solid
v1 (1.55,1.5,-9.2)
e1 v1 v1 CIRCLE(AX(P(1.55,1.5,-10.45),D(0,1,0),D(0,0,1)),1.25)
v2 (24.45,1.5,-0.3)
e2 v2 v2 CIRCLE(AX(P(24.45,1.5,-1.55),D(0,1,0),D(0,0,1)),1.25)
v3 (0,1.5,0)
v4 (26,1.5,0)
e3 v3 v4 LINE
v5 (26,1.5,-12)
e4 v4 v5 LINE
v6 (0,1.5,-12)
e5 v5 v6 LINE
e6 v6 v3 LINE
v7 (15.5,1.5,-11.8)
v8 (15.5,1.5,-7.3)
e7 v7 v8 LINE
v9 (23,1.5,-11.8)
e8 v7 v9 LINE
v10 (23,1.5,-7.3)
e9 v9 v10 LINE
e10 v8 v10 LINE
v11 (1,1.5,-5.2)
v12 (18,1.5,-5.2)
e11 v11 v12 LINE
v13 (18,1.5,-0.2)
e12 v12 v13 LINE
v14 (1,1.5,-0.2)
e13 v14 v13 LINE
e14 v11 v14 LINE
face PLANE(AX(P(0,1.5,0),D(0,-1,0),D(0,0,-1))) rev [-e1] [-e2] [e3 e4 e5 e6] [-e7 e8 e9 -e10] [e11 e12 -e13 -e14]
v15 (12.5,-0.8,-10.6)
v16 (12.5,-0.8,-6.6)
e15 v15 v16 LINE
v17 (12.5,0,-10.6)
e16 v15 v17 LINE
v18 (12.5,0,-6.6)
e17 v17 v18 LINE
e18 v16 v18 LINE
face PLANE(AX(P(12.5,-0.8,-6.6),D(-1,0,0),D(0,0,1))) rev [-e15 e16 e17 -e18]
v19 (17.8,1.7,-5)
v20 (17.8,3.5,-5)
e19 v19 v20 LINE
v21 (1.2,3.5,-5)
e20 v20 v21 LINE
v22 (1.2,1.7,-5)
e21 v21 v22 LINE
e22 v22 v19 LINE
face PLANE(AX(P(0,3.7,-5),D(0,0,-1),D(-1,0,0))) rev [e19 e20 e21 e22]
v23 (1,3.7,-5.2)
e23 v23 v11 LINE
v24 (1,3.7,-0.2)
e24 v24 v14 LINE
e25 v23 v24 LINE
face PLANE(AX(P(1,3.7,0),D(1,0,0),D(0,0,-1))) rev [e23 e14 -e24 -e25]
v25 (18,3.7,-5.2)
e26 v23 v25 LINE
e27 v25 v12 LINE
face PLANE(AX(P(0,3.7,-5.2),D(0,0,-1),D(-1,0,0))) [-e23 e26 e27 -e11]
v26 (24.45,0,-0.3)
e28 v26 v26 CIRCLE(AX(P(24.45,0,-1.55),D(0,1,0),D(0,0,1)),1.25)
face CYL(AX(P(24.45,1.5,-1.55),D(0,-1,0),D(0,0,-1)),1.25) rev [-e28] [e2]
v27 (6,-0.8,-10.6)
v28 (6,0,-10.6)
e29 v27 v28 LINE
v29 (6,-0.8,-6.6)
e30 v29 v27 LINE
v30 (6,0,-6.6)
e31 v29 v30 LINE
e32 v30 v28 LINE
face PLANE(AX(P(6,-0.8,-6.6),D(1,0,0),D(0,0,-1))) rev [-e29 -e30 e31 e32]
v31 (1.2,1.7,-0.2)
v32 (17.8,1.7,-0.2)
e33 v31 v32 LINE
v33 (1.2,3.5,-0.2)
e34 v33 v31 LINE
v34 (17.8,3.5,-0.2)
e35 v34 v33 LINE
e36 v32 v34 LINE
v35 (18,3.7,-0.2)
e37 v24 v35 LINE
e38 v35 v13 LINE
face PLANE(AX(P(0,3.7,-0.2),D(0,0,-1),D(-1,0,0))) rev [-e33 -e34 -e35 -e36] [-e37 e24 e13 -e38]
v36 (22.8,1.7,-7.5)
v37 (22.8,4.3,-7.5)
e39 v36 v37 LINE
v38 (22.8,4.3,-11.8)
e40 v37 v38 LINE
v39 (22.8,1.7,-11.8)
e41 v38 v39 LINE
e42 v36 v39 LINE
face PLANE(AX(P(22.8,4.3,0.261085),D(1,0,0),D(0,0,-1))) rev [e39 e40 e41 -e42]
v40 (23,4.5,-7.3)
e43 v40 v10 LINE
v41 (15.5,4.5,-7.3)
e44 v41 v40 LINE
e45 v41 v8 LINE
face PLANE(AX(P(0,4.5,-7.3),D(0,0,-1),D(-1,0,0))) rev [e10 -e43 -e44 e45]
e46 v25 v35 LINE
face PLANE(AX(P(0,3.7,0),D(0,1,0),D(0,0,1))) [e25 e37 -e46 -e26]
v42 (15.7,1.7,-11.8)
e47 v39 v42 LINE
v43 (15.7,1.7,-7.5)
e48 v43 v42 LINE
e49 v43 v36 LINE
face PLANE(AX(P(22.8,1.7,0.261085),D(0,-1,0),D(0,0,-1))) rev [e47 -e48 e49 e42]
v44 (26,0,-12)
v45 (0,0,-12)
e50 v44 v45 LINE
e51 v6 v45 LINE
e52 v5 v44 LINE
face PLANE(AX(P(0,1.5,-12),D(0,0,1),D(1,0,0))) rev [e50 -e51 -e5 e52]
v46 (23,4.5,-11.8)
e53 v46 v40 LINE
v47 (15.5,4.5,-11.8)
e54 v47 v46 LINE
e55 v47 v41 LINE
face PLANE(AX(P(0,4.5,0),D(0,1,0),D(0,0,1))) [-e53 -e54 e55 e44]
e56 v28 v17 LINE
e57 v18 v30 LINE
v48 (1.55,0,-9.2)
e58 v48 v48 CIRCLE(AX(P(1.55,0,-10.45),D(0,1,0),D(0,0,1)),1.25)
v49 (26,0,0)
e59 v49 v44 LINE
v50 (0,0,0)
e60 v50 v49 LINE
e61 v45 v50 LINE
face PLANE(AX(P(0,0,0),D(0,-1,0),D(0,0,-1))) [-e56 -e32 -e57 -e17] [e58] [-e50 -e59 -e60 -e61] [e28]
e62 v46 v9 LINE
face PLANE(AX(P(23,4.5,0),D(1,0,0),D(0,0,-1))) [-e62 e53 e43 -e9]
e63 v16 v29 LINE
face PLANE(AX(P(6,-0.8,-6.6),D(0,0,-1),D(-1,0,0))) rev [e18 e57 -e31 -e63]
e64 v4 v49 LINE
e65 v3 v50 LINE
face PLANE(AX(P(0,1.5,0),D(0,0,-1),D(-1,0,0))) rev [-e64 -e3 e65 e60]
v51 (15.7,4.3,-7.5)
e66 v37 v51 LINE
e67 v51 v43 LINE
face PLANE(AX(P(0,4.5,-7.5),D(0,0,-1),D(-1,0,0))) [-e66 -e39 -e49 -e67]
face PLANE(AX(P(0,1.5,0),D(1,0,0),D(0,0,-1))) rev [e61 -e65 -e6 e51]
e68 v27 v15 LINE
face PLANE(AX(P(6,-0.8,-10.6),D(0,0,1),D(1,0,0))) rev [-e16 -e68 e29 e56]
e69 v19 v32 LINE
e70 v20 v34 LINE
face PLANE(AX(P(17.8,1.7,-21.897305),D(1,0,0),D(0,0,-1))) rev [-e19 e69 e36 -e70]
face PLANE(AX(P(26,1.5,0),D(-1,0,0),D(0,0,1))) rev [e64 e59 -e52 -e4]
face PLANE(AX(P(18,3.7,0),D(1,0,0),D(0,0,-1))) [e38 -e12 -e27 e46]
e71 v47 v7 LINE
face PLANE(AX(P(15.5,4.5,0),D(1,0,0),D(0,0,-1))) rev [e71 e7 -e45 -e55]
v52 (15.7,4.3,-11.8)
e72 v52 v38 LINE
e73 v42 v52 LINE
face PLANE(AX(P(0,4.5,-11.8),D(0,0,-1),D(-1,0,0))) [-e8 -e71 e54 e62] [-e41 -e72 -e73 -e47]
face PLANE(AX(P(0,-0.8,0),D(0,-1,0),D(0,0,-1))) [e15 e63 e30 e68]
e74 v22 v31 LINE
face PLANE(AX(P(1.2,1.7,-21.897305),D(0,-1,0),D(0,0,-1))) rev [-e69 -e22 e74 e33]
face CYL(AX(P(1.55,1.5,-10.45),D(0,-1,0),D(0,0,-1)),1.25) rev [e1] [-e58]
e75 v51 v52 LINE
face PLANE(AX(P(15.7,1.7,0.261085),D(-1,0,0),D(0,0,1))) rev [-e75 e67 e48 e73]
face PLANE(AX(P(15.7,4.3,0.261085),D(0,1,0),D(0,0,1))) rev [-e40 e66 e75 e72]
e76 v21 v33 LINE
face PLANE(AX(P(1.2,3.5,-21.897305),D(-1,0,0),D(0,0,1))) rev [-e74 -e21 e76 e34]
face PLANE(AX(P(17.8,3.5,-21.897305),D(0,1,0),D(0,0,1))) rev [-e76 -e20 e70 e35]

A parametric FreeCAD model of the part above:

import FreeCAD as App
import Part
import Sketcher

V = App.Vector

doc = App.newDocument("Part")
body = doc.addObject("PartDesign::Body", "Body")

# Sketch on XZ plane
sketch1 = body.newObject("Sketcher::SketchObject", "Sketch")
sketch1.AttachmentSupport = (doc.getObject("XZ_Plane"), [""])
sketch1.MapMode = "FlatFace"
sketch1.addGeometry([
    Part.LineSegment(V(0, -12, 0), V(0, 0, 0)),  # 0
    Part.LineSegment(V(0, 0, 0), V(26, 0, 0)),  # 1
    Part.LineSegment(V(26, 0, 0), V(26, -12, 0)),  # 2
    Part.LineSegment(V(26, -12, 0), V(0, -12, 0)),  # 3
    Part.Circle(V(24.4, -1.6, 0), V(0, 0, 1), 1.2),  # 4
    Part.Circle(V(1.6, -10.4, 0), V(0, 0, 1), 1.2),  # 5
], False)
sketch1.addConstraint([
    Sketcher.Constraint("Coincident", 0, 2, 1, 1),
    Sketcher.Constraint("Coincident", 1, 2, 2, 1),
    Sketcher.Constraint("Coincident", 2, 2, 3, 1),
    Sketcher.Constraint("Coincident", 3, 2, 0, 1),
    Sketcher.Constraint("Vertical", 0),
    Sketcher.Constraint("Horizontal", 1),
    Sketcher.Constraint("Vertical", 2),
    Sketcher.Constraint("Horizontal", 3),
    Sketcher.Constraint("Coincident", 0, 2, -1, 1),
    Sketcher.Constraint("Equal", 4, 5),
    Sketcher.Constraint("Diameter", 4, 2.5),
    Sketcher.Constraint("DistanceX", 1, 1, 1, 2, 26.0),
    Sketcher.Constraint("DistanceY", 0, 1, 0, 2, 12.0),
    Sketcher.Constraint("DistanceX", 5, 3, 4, 3, 22.9),
    Sketcher.Constraint("DistanceY", 5, 3, 4, 3, 8.9),
    Sketcher.Constraint("DistanceX", -1, 1, 4, 3, 24.45),
    Sketcher.Constraint("DistanceY", 4, 3, -1, 1, 1.55),
])
pad1 = body.newObject("PartDesign::Pad", "Pad")
pad1.Profile = sketch1
pad1.Length = 1.5
pad1.Reversed = True

# Sketch on XZ plane
sketch2 = body.newObject("Sketcher::SketchObject", "Sketch001")
sketch2.AttachmentSupport = (doc.getObject("XZ_Plane"), [""])
sketch2.MapMode = "FlatFace"
sketch2.AttachmentOffset = App.Placement(V(0, 0, -1.5), App.Rotation())
sketch2.addGeometry([
    Part.LineSegment(V(1, -5, 0), V(1, 0, 0)),
    Part.LineSegment(V(1, 0, 0), V(18, 0, 0)),
    Part.LineSegment(V(18, 0, 0), V(18, -5, 0)),
    Part.LineSegment(V(18, -5, 0), V(1, -5, 0)),
], False)
sketch2.addConstraint([
    Sketcher.Constraint("Coincident", 0, 2, 1, 1),
    Sketcher.Constraint("Coincident", 1, 2, 2, 1),
    Sketcher.Constraint("Coincident", 2, 2, 3, 1),
    Sketcher.Constraint("Coincident", 3, 2, 0, 1),
    Sketcher.Constraint("Vertical", 0),
    Sketcher.Constraint("Horizontal", 1),
    Sketcher.Constraint("Vertical", 2),
    Sketcher.Constraint("Horizontal", 3),
    Sketcher.Constraint("DistanceX", 1, 1, 1, 2, 17.0),
    Sketcher.Constraint("DistanceY", 0, 1, 0, 2, 5.0),
    Sketcher.Constraint("DistanceX", -1, 1, 0, 2, 1.0),
    Sketcher.Constraint("DistanceY", 0, 2, -1, 1, 0.2),
])
pad2 = body.newObject("PartDesign::Pad", "Pad001")
pad2.Profile = sketch2
pad2.Length = 2.2
pad2.Reversed = True

# Sketch on XZ plane
sketch3 = body.newObject("Sketcher::SketchObject", "Sketch002")
sketch3.AttachmentSupport = (doc.getObject("XZ_Plane"), [""])
sketch3.MapMode = "FlatFace"
sketch3.AttachmentOffset = App.Placement(V(0, 0, -1.5), App.Rotation())
sketch3.addGeometry([
    Part.LineSegment(V(15.5, -11.8, 0), V(15.5, -7.3, 0)),
    Part.LineSegment(V(15.5, -7.3, 0), V(23, -7.3, 0)),
    Part.LineSegment(V(23, -7.3, 0), V(23, -11.8, 0)),
    Part.LineSegment(V(23, -11.8, 0), V(15.5, -11.8, 0)),
], False)
sketch3.addConstraint([
    Sketcher.Constraint("Coincident", 0, 2, 1, 1),
    Sketcher.Constraint("Coincident", 1, 2, 2, 1),
    Sketcher.Constraint("Coincident", 2, 2, 3, 1),
    Sketcher.Constraint("Coincident", 3, 2, 0, 1),
    Sketcher.Constraint("Vertical", 0),
    Sketcher.Constraint("Horizontal", 1),
    Sketcher.Constraint("Vertical", 2),
    Sketcher.Constraint("Horizontal", 3),
    Sketcher.Constraint("DistanceX", 1, 1, 1, 2, 7.5),
    Sketcher.Constraint("DistanceY", 0, 1, 0, 2, 4.5),
    Sketcher.Constraint("DistanceX", -1, 1, 1, 2, 23.0),
    Sketcher.Constraint("DistanceY", 0, 2, -1, 1, 7.3),
])
pad3 = body.newObject("PartDesign::Pad", "Pad002")
pad3.Profile = sketch3
pad3.Length = 3
pad3.Reversed = True

# Sketch on XY plane
sketch4 = body.newObject("Sketcher::SketchObject", "Sketch003")
sketch4.AttachmentSupport = (doc.getObject("XY_Plane"), [""])
sketch4.MapMode = "FlatFace"
sketch4.AttachmentOffset = App.Placement(V(0, 0, -11.8), App.Rotation())
sketch4.addGeometry([
    Part.LineSegment(V(22.8, 4.3, 0), V(22.8, 1.7, 0)),
    Part.LineSegment(V(22.8, 1.7, 0), V(15.7, 1.7, 0)),
    Part.LineSegment(V(15.7, 1.7, 0), V(15.7, 4.3, 0)),
    Part.LineSegment(V(15.7, 4.3, 0), V(22.8, 4.3, 0)),
], False)
sketch4.addConstraint([
    Sketcher.Constraint("Coincident", 0, 2, 1, 1),
    Sketcher.Constraint("Coincident", 1, 2, 2, 1),
    Sketcher.Constraint("Coincident", 2, 2, 3, 1),
    Sketcher.Constraint("Coincident", 3, 2, 0, 1),
    Sketcher.Constraint("Vertical", 0),
    Sketcher.Constraint("Horizontal", 1),
    Sketcher.Constraint("Vertical", 2),
    Sketcher.Constraint("Horizontal", 3),
    Sketcher.Constraint("DistanceX", 1, 2, 1, 1, 7.1),
    Sketcher.Constraint("DistanceY", 0, 2, 0, 1, 2.6),
    Sketcher.Constraint("DistanceX", -1, 1, 0, 2, 22.8),
    Sketcher.Constraint("DistanceY", -1, 1, 0, 2, 1.7),
])
pocket1 = body.newObject("PartDesign::Pocket", "Pocket")
pocket1.Profile = sketch4
pocket1.Length = 4.3
pocket1.Reversed = True

# Sketch on XY plane
sketch5 = body.newObject("Sketcher::SketchObject", "Sketch004")
sketch5.AttachmentSupport = (doc.getObject("XY_Plane"), [""])
sketch5.MapMode = "FlatFace"
sketch5.AttachmentOffset = App.Placement(V(0, 0, -0.2), App.Rotation())
sketch5.addGeometry([
    Part.LineSegment(V(1.2, 3.5, 0), V(1.2, 1.7, 0)),
    Part.LineSegment(V(1.2, 1.7, 0), V(17.8, 1.7, 0)),
    Part.LineSegment(V(17.8, 1.7, 0), V(17.8, 3.5, 0)),
    Part.LineSegment(V(17.8, 3.5, 0), V(1.2, 3.5, 0)),
], False)
sketch5.addConstraint([
    Sketcher.Constraint("Coincident", 0, 2, 1, 1),
    Sketcher.Constraint("Coincident", 1, 2, 2, 1),
    Sketcher.Constraint("Coincident", 2, 2, 3, 1),
    Sketcher.Constraint("Coincident", 3, 2, 0, 1),
    Sketcher.Constraint("Vertical", 0),
    Sketcher.Constraint("Horizontal", 1),
    Sketcher.Constraint("Vertical", 2),
    Sketcher.Constraint("Horizontal", 3),
    Sketcher.Constraint("DistanceX", 1, 1, 1, 2, 16.6),
    Sketcher.Constraint("DistanceY", 0, 2, 0, 1, 1.8),
    Sketcher.Constraint("DistanceX", -1, 1, 0, 2, 1.2),
    Sketcher.Constraint("DistanceY", -1, 1, 0, 2, 1.7),
])
pocket2 = body.newObject("PartDesign::Pocket", "Pocket001")
pocket2.Profile = sketch5
pocket2.Length = 4.8

# Sketch on XZ plane
sketch6 = body.newObject("Sketcher::SketchObject", "Sketch005")
sketch6.AttachmentSupport = (doc.getObject("XZ_Plane"), [""])
sketch6.MapMode = "FlatFace"
sketch6.addGeometry([
    Part.LineSegment(V(6, -6.6, 0), V(6, -10.6, 0)),
    Part.LineSegment(V(6, -10.6, 0), V(12.5, -10.6, 0)),
    Part.LineSegment(V(12.5, -10.6, 0), V(12.5, -6.6, 0)),
    Part.LineSegment(V(12.5, -6.6, 0), V(6, -6.6, 0)),
], False)
sketch6.addConstraint([
    Sketcher.Constraint("Coincident", 0, 2, 1, 1),
    Sketcher.Constraint("Coincident", 1, 2, 2, 1),
    Sketcher.Constraint("Coincident", 2, 2, 3, 1),
    Sketcher.Constraint("Coincident", 3, 2, 0, 1),
    Sketcher.Constraint("Vertical", 0),
    Sketcher.Constraint("Horizontal", 1),
    Sketcher.Constraint("Vertical", 2),
    Sketcher.Constraint("Horizontal", 3),
    Sketcher.Constraint("DistanceY", 0, 2, 0, 1, 4.0),
    Sketcher.Constraint("DistanceX", 1, 1, 1, 2, 6.5),
    Sketcher.Constraint("DistanceX", -1, 1, 0, 2, 6.0),
    Sketcher.Constraint("DistanceY", 0, 2, -1, 1, 10.6),
])
pad4 = body.newObject("PartDesign::Pad", "Pad003")
pad4.Profile = sketch6
pad4.Length = 0.8

doc.recompute()
